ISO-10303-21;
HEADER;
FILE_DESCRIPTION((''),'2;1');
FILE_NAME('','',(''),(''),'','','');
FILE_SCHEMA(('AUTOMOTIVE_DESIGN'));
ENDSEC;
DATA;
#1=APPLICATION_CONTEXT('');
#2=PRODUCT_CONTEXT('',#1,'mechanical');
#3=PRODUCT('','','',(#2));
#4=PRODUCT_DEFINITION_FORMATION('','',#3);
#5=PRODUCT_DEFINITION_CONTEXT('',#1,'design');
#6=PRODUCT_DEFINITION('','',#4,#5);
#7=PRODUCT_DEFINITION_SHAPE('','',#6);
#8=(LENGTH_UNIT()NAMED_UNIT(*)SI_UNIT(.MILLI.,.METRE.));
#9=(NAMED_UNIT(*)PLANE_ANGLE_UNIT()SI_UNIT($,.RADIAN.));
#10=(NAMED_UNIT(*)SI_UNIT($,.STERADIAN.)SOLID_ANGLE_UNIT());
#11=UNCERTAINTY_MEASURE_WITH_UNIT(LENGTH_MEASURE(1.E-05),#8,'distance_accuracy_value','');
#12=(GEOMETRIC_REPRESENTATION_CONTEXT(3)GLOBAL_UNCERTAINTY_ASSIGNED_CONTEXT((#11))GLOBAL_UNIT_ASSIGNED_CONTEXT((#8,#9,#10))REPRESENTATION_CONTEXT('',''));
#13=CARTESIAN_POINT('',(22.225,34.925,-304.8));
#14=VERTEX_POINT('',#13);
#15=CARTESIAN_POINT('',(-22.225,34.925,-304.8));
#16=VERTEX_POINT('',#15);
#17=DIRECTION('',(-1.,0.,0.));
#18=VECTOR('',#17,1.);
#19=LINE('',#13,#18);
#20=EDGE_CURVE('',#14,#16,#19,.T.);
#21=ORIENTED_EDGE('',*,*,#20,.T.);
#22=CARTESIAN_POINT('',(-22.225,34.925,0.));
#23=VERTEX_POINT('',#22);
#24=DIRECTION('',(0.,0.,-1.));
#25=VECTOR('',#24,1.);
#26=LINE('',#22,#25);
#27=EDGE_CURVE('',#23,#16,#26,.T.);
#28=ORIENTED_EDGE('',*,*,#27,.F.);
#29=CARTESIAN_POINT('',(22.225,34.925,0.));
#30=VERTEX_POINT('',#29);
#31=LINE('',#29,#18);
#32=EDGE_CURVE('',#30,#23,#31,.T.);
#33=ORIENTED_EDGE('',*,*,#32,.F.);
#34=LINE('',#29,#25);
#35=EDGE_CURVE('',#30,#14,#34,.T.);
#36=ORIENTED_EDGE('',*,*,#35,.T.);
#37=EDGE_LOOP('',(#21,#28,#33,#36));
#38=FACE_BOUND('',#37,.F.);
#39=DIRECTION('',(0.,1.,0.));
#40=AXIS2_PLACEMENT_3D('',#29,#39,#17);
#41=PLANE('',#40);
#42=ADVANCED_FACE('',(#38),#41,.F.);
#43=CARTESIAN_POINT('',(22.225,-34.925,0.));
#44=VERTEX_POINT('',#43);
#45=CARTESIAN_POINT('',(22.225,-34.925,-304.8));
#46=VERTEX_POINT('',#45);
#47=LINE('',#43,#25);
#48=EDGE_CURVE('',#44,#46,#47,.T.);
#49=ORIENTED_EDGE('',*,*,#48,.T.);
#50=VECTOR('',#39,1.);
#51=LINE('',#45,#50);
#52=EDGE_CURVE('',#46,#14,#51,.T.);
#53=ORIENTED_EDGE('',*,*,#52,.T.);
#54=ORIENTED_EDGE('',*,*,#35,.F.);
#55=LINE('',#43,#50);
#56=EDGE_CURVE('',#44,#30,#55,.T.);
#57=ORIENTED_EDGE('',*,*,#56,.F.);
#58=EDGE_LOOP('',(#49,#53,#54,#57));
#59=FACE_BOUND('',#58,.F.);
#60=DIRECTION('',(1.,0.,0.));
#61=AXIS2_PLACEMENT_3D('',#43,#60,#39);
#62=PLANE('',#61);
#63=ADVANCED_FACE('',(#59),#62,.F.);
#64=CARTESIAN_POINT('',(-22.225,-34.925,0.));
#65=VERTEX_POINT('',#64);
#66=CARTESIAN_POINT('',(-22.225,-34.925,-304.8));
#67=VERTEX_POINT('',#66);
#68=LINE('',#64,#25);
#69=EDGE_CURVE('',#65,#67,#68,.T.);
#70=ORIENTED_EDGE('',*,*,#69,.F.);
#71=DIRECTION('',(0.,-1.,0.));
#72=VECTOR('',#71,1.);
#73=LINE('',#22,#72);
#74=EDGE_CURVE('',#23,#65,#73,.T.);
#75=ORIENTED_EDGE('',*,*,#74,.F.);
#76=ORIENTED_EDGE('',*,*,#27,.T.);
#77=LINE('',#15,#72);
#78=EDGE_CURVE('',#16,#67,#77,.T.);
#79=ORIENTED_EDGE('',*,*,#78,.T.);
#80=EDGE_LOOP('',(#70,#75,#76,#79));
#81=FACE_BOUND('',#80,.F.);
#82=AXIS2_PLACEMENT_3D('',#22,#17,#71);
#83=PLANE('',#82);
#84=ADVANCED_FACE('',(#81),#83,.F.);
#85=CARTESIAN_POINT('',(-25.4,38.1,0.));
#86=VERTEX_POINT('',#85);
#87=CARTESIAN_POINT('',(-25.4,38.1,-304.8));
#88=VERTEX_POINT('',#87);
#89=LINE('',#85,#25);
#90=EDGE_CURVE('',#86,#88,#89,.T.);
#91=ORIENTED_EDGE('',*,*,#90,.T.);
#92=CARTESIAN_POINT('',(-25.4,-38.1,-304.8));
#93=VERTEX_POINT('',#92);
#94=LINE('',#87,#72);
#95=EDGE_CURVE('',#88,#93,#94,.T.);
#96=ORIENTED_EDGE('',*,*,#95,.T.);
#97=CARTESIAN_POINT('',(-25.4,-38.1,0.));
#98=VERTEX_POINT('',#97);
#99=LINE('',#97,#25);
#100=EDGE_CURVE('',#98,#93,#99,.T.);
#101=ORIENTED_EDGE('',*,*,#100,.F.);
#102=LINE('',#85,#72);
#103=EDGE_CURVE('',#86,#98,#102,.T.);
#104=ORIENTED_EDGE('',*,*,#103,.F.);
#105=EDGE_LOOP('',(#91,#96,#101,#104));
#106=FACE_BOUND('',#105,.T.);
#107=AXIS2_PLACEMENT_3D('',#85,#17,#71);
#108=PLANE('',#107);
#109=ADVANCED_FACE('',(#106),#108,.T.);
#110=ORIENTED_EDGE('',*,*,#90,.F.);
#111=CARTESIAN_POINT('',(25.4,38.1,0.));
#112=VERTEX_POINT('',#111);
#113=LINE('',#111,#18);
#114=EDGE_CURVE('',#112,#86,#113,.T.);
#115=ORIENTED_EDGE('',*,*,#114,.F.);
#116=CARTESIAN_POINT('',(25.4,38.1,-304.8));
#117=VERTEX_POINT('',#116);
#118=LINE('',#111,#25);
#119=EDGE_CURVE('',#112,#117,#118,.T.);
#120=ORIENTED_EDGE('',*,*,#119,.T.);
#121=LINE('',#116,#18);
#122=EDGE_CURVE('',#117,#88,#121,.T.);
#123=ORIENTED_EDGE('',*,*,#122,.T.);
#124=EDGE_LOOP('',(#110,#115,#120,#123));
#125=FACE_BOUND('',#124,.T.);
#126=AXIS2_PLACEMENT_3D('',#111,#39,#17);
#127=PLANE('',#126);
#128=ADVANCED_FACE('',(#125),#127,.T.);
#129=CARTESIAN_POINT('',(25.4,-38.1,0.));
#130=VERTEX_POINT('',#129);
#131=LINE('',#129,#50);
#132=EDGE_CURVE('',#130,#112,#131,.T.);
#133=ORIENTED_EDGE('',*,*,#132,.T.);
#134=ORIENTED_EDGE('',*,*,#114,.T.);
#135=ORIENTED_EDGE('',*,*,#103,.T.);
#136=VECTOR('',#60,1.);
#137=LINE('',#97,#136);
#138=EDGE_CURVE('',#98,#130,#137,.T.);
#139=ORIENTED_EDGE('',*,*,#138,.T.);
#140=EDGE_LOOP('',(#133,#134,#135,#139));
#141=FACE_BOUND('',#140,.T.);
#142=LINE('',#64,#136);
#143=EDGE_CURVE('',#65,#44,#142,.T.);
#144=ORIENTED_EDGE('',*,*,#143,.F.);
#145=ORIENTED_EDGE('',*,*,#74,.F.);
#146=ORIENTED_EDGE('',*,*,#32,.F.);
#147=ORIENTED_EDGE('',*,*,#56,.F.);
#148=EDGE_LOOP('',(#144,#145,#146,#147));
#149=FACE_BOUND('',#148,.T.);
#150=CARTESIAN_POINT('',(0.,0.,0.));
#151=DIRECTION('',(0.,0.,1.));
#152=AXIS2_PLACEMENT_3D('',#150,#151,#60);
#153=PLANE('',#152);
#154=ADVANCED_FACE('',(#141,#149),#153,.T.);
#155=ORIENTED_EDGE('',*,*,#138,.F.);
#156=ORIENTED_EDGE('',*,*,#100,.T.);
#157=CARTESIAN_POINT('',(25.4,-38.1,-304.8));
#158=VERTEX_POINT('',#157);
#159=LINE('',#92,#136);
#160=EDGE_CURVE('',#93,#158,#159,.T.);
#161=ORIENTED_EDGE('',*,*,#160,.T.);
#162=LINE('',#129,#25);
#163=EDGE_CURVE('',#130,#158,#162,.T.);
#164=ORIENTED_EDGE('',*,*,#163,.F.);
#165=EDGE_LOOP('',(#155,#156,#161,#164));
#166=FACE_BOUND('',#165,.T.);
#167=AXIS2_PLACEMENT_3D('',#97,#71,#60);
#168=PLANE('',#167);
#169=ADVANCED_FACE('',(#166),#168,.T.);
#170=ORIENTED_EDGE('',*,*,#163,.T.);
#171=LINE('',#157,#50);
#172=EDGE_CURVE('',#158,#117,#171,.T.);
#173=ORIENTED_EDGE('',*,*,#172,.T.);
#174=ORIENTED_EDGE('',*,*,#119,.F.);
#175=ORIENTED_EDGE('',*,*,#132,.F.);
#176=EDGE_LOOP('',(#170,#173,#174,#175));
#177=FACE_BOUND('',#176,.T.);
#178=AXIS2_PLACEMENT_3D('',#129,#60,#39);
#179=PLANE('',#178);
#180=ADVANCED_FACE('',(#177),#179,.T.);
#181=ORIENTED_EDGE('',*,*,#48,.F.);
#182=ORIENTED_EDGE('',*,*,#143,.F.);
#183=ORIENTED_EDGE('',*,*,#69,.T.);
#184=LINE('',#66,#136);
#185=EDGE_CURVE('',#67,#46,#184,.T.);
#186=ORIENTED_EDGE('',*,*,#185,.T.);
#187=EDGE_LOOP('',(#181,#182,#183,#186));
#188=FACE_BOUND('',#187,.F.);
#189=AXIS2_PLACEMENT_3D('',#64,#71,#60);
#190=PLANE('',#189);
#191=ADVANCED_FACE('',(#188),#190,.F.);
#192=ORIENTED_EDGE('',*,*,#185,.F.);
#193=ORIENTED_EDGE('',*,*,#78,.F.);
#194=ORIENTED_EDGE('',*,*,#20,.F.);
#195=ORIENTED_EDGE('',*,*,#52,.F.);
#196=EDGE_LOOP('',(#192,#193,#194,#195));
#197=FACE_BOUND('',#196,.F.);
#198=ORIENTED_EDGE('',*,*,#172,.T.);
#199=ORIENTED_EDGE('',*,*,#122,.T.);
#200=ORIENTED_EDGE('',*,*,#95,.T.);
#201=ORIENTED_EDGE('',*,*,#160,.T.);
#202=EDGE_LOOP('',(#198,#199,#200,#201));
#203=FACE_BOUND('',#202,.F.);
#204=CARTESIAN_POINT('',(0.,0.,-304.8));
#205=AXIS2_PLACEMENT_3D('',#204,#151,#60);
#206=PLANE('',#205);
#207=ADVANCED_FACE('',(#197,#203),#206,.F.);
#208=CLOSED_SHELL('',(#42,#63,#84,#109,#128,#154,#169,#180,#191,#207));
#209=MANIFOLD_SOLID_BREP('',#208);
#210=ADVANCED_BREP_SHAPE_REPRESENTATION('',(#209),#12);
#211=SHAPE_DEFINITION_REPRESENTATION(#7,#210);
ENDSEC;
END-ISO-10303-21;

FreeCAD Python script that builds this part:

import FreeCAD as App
import Part
import Sketcher

V = App.Vector
Q = App.Units.Quantity


def add_polygon(sketch, points):
    """Adds a closed chain of lines whose ends are joined by coincident constraints."""
    first, n = sketch.GeometryCount, len(points)
    for a, b in zip(points, points[1:] + points[:1]):
        sketch.addGeometry(Part.LineSegment(App.Vector(*a, 0), App.Vector(*b, 0)), False)
    for i in range(n):
        sketch.addConstraint(Sketcher.Constraint("Coincident", first + i, 2, first + (i + 1) % n, 1))

doc = App.newDocument("Part")
body = doc.addObject("PartDesign::Body", "Body")

# Sketch on XY plane
sketch1 = body.newObject("Sketcher::SketchObject", "Sketch")
sketch1.AttachmentSupport = (doc.getObject("XY_Plane"), [""])
sketch1.MapMode = "FlatFace"
add_polygon(sketch1, [(-25.4, 38.1), (-25.4, -38.1), (25.4, -38.1), (25.4, 38.1)])  # lines 0-3
add_polygon(sketch1, [(22.225, -34.925), (-22.225, -34.925), (-22.225, 34.925), (22.225, 34.925)])  # lines 4-7
sketch1.addConstraint(Sketcher.Constraint("Vertical", 0))
sketch1.addConstraint(Sketcher.Constraint("Horizontal", 1))
sketch1.addConstraint(Sketcher.Constraint("Vertical", 2))
sketch1.addConstraint(Sketcher.Constraint("Horizontal", 3))
sketch1.addConstraint(Sketcher.Constraint("Horizontal", 4))
sketch1.addConstraint(Sketcher.Constraint("Vertical", 5))
sketch1.addConstraint(Sketcher.Constraint("Horizontal", 6))
sketch1.addConstraint(Sketcher.Constraint("Vertical", 7))
sketch1.addConstraint(Sketcher.Constraint("Symmetric", 0, 2, 2, 2, -1, 1))
sketch1.addConstraint(Sketcher.Constraint("Symmetric", 4, 2, 6, 2, -1, 1))
sketch1.addConstraint(Sketcher.Constraint("DistanceX", 1, 1, 1, 2, Q("2 in")))
sketch1.addConstraint(Sketcher.Constraint("DistanceY", 0, 2, 0, 1, Q("3 in")))
sketch1.addConstraint(Sketcher.Constraint("DistanceX", 0, 2, 4, 2, Q("0.125 in")))
sketch1.addConstraint(Sketcher.Constraint("DistanceY", 0, 2, 4, 2, Q("0.125 in")))
pad1 = body.newObject("PartDesign::Pad", "Pad")
pad1.Profile = sketch1
pad1.Length = Q("12 in")
pad1.Reversed = True

doc.recompute()
